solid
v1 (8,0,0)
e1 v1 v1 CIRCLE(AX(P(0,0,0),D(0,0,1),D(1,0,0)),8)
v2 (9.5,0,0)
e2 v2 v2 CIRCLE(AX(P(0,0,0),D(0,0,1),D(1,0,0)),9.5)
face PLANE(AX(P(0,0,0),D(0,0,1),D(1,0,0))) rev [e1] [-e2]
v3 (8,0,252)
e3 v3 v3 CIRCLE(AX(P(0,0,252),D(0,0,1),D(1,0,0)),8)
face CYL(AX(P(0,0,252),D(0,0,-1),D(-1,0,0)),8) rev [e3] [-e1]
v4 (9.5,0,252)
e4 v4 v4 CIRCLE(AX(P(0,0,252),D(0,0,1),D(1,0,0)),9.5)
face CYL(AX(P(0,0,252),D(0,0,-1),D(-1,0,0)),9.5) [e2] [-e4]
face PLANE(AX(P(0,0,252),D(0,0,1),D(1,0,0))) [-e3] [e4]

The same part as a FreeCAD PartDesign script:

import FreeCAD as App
import Part
import Sketcher

V = App.Vector

doc = App.newDocument("Part")
body = doc.addObject("PartDesign::Body", "Body")

# Sketch on XY plane
sketch1 = body.newObject("Sketcher::SketchObject", "Sketch")
sketch1.AttachmentSupport = (doc.getObject("XY_Plane"), [""])
sketch1.MapMode = "FlatFace"
sketch1.addGeometry(Part.Circle(V(0, 0, 0), V(0, 0, 1), 9.5), False)
sketch1.addGeometry(Part.Circle(V(0, 0, 0), V(0, 0, 1), 8), False)
sketch1.addConstraint(Sketcher.Constraint("Coincident", 0, 3, -1, 1))
sketch1.addConstraint(Sketcher.Constraint("Coincident", 1, 3, -1, 1))
sketch1.addConstraint(Sketcher.Constraint("Diameter", 0, 19.0))
sketch1.addConstraint(Sketcher.Constraint("Diameter", 1, 16.0))
pad1 = body.newObject("PartDesign::Pad", "Pad")
pad1.Profile = sketch1
pad1.Length = 252

doc.recompute()
